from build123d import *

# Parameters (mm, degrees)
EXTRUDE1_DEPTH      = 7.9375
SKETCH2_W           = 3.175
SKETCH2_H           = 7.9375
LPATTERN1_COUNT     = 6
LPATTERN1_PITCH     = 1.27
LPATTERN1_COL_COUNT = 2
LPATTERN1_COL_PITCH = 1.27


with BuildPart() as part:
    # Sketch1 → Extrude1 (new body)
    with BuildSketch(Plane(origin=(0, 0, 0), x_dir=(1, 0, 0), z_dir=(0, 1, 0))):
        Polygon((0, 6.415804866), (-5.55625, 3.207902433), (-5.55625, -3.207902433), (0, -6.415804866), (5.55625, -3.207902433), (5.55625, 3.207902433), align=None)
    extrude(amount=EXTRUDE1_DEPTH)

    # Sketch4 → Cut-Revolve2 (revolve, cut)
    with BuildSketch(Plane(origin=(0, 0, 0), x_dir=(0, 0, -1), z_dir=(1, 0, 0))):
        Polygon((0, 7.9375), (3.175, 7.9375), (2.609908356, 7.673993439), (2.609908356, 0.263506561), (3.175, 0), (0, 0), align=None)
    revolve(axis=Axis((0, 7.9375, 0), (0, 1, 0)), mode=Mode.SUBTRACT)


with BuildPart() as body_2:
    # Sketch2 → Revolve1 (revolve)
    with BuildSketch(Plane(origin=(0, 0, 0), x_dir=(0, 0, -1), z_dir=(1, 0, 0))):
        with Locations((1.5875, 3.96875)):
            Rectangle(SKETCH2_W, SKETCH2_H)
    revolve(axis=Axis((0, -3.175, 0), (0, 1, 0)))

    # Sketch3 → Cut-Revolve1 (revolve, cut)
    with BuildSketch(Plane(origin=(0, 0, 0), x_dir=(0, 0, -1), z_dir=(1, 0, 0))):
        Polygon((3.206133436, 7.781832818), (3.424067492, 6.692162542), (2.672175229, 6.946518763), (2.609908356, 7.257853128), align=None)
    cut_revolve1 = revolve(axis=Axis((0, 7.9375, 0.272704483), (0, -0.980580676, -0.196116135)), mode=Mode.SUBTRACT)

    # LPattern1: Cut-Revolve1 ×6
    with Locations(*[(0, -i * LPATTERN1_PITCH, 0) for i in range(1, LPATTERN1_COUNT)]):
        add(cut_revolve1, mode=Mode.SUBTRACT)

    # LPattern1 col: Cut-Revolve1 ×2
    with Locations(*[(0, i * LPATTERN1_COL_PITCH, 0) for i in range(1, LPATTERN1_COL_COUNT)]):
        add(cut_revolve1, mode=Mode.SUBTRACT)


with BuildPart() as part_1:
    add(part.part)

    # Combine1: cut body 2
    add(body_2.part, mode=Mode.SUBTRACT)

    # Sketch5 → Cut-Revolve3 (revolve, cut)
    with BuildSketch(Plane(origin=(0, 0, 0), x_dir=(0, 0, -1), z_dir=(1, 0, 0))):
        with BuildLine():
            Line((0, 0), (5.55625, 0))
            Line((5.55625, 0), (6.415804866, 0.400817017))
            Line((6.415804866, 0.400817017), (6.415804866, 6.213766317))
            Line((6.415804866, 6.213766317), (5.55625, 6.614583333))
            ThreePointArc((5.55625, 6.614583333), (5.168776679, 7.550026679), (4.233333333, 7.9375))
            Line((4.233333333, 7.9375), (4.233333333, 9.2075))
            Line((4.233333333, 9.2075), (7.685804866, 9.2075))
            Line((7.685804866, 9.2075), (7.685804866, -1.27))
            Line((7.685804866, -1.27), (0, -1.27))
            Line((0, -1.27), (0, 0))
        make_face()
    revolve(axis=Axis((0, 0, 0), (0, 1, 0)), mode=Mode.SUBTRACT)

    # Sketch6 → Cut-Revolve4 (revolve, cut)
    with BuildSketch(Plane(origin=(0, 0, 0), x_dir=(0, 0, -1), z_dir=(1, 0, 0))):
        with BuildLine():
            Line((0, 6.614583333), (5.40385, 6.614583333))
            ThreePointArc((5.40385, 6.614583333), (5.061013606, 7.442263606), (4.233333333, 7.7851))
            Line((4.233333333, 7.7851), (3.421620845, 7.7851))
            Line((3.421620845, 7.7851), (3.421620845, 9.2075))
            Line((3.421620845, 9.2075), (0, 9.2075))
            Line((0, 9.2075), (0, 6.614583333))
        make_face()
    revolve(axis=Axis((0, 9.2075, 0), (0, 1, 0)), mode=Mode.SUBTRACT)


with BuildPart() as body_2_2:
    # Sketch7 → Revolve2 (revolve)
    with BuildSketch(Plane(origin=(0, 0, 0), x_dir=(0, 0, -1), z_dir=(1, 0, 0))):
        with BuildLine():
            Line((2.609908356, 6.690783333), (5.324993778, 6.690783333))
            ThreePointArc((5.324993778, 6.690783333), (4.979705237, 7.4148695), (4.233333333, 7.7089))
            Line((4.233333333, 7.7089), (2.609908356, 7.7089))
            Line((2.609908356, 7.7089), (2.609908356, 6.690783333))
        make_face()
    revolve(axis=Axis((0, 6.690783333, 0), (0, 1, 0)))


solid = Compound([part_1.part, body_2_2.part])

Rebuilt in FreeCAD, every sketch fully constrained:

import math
import FreeCAD as App
import Part
import Sketcher

V = App.Vector
Q = App.Units.Quantity


def add_polygon(sketch, points):
    """Adds a closed chain of lines whose ends are joined by coincident constraints."""
    first, n = sketch.GeometryCount, len(points)
    for a, b in zip(points, points[1:] + points[:1]):
        sketch.addGeometry(Part.LineSegment(App.Vector(*a, 0), App.Vector(*b, 0)), False)
    for i in range(n):
        sketch.addConstraint(Sketcher.Constraint("Coincident", first + i, 2, first + (i + 1) % n, 1))

doc = App.newDocument("Part")
params = doc.addObject("Spreadsheet::Sheet", "Params")
for row, (alias, value) in enumerate([
    ("pad1_length", "0.3125 in"),
    ("sketch2_width", "0.3125 in"),
    ("sketch2_height", "0.125 in"),
    ("groove_angle", "360 deg"),
    ("sketch3_width", "0.3125 in"),
    ("sketch3_height", "0.125 in"),
    ("revolution_angle", "360 deg"),
    ("sketch4_length", "0.03125 in"),
    ("groove2_angle", "360 deg"),
    ("linearpattern_pitch", "0.05 in"),
    ("linearpattern2_pitch", "0.05 in"),
    ("sketch5_width", "0.05 in"),
    ("sketch5_height", "0.21875 in"),
    ("groove3_angle", "360 deg"),
    ("sketch6_width", "0.056 in"),
    ("groove4_angle", "360 deg"),
    ("revolution2_angle", "360 deg"),
], start=1):
    params.set(f"A{row}", alias)
    params.set(f"B{row}", "=" + value)
    params.setAlias(f"B{row}", alias)

body = doc.addObject("PartDesign::Body", "Body")

sketch1 = body.newObject("Sketcher::SketchObject", "Sketch")
sketch1.AttachmentSupport = (doc.getObject("XZ_Plane"), [""])
sketch1.MapMode = "FlatFace"
add_polygon(sketch1, [(0, -6), (-6, -3), (-6, 3), (0, 6), (6, 3), (6, -3)])
sketch1.addConstraint(Sketcher.Constraint("Vertical", 1))
sketch1.addConstraint(Sketcher.Constraint("Vertical", 4))
sketch1.addConstraint(Sketcher.Constraint("Symmetric", 0, 2, 3, 2, -1, 1))
sketch1.addConstraint(Sketcher.Constraint("Symmetric", 2, 2, 5, 2, -1, 1))
sketch1.addConstraint(Sketcher.Constraint("PointOnObject", 2, 2, -2))
sketch1.addConstraint(Sketcher.Constraint("Parallel", 2, 5))
sketch1.addConstraint(Sketcher.Constraint("Horizontal", 1, 2, 3, 2))
sketch1.addConstraint(Sketcher.Constraint("Angle", 0, Q("150 deg")))
sketch1.addConstraint(Sketcher.Constraint("DistanceX", 0, 2, -1, 1, Q("0.21875 in")))
sketch1.addConstraint(Sketcher.Constraint("DistanceY", 1, 1, 1, 2, 6.415805))
pad1 = body.newObject("PartDesign::Pad", "Pad")
pad1.Profile = sketch1
pad1.setExpression("Length", "Params.pad1_length")
pad1.Reversed = True

sketch2 = body.newObject("Sketcher::SketchObject", "Sketch001")
sketch2.AttachmentSupport = (doc.getObject("YZ_Plane"), [""])
sketch2.MapMode = "FlatFace"
add_polygon(sketch2, [(7.9, -3.2), (7.9, 0), (0, 0), (0, -3.2), (0.3, -2.6), (7.7, -2.6)])
sketch2.addConstraint(Sketcher.Constraint("Vertical", 0))
sketch2.addConstraint(Sketcher.Constraint("Horizontal", 1))
sketch2.addConstraint(Sketcher.Constraint("Vertical", 2))
sketch2.addConstraint(Sketcher.Constraint("Horizontal", 4))
sketch2.addConstraint(Sketcher.Constraint("Coincident", 1, 2, -1, 1))
sketch2.addConstraint(Sketcher.Constraint("Horizontal", 2, 2, 5, 2))
sketch2.addConstraint(Sketcher.Constraint("Equal", 3, 5))
sketch2.addConstraint(Sketcher.Constraint("Angle", 3, Q("65 deg")))
sketch2.addConstraint(Sketcher.Constraint("DistanceX", 1, 2, 1, 1, Q("0.3125 in")))
sketch2.addConstraint(Sketcher.Constraint("DistanceY", 0, 1, 0, 2, Q("0.125 in")))
sketch2.addConstraint(Sketcher.Constraint("Distance", 3, 0.62351))
sketch2.setExpression("Constraints[14]", "Params.sketch2_width")
sketch2.setExpression("Constraints[15]", "Params.sketch2_height")
groove = body.newObject("PartDesign::Groove", "Groove")
groove.Profile = sketch2
groove.ReferenceAxis = (sketch2, ["H_Axis"])
groove.setExpression("Angle", "Params.groove_angle")
body2 = doc.addObject("PartDesign::Body", "Body001")

sketch3 = body2.newObject("Sketcher::SketchObject", "Sketch002")
sketch3.AttachmentSupport = (doc.getObject("YZ_Plane001"), [""])
sketch3.MapMode = "FlatFace"
add_polygon(sketch3, [(7.9, 0), (0, 0), (0, -3.2), (7.9, -3.2)])
sketch3.addConstraint(Sketcher.Constraint("Horizontal", 0))
sketch3.addConstraint(Sketcher.Constraint("Vertical", 1))
sketch3.addConstraint(Sketcher.Constraint("Horizontal", 2))
sketch3.addConstraint(Sketcher.Constraint("Vertical", 3))
sketch3.addConstraint(Sketcher.Constraint("Coincident", 0, 2, -1, 1))
sketch3.addConstraint(Sketcher.Constraint("DistanceX", 0, 2, 0, 1, Q("0.3125 in")))
sketch3.addConstraint(Sketcher.Constraint("DistanceY", 1, 2, 1, 1, Q("0.125 in")))
sketch3.setExpression("Constraints[9]", "Params.sketch3_width")
sketch3.setExpression("Constraints[10]", "Params.sketch3_height")
revolution = body2.newObject("PartDesign::Revolution", "Revolution")
revolution.Profile = sketch3
revolution.ReferenceAxis = (sketch3, ["H_Axis"])
revolution.setExpression("Angle", "Params.revolution_angle")

sketch4 = body2.newObject("Sketcher::SketchObject", "Sketch003")
sketch4.AttachmentSupport = (doc.getObject("YZ_Plane001"), [""])
sketch4.MapMode = "FlatFace"
add_polygon(sketch4, [(6.69, -3.42), (7.78, -3.21), (7.26, -2.61), (6.95, -2.67)])
sketch4.addGeometry(Part.LineSegment(V(7.12, 0.11, 0), V(6.03, -0.11, 0)), True)
sketch4.addConstraint(Sketcher.Constraint("Parallel", 0, 2))
sketch4.addConstraint(Sketcher.Constraint("Parallel", 2, 4))
sketch4.addConstraint(Sketcher.Constraint("Equal", 1, 3))
sketch4.addConstraint(Sketcher.Constraint("Equal", 0, 4))
sketch4.addConstraint(Sketcher.Constraint("Distance", 1, Q("0.03125 in")))
sketch4.addConstraint(Sketcher.Constraint("Distance", 2, Q("0.0125 in")))
sketch4.addConstraint(Sketcher.Constraint("DistanceY", 0, 2, 4, 1, 3.3151))
sketch4.addConstraint(Sketcher.Constraint("Distance", 0, 1.11125))
sketch4.addConstraint(Sketcher.Constraint("DistanceY", 1, 2, -1, 1, 2.609908))
sketch4.addConstraint(Sketcher.Constraint("DistanceX", -1, 1, 2, 2, 6.946519))
sketch4.addConstraint(Sketcher.Constraint("DistanceX", 1, 2, 0, 2, 0.52398))
sketch4.addConstraint(Sketcher.Constraint("DistanceX", 4, 1, 1, 2, 0.13904))
sketch4.setExpression("Constraints[8]", "Params.sketch4_length")
groove2 = body2.newObject("PartDesign::Groove", "Groove001")
groove2.Profile = sketch4
groove2.ReferenceAxis = (sketch4, ["Axis0"])
groove2.setExpression("Angle", "Params.groove2_angle")
doc.recompute()

linearpattern = body2.newObject("PartDesign::LinearPattern", "LinearPattern")
linearpattern.Originals = [groove2]
linearpattern.Direction = (doc.getObject("Y_Axis001"), [""])
linearpattern.Mode = "offset"
linearpattern.setExpression("Offset", "Params.linearpattern_pitch")
linearpattern.Occurrences = 6
linearpattern.Reversed = True
body2.Tip = linearpattern
doc.recompute()

linearpattern2 = body2.newObject("PartDesign::LinearPattern", "LinearPattern001")
linearpattern2.Originals = [groove2]
linearpattern2.Direction = (doc.getObject("Y_Axis001"), [""])
linearpattern2.Mode = "offset"
linearpattern2.setExpression("Offset", "Params.linearpattern2_pitch")
linearpattern2.Occurrences = 2
body2.Tip = linearpattern2
doc.recompute()

boolean = body.newObject("PartDesign::Boolean", "Boolean")
boolean.Type = "Cut"
boolean.addObjects([body2])

sketch5 = body.newObject("Sketcher::SketchObject", "Sketch004")
sketch5.AttachmentSupport = (doc.getObject("YZ_Plane"), [""])
sketch5.MapMode = "FlatFace"
sketch5.addGeometry(Part.LineSegment(V(0, -5.6, 0), V(0, 0, 0)), False)
sketch5.addGeometry(Part.LineSegment(V(0, 0, 0), V(-1.3, 0, 0)), False)
sketch5.addGeometry(Part.LineSegment(V(-1.3, 0, 0), V(-1.3, -7.7, 0)), False)
sketch5.addGeometry(Part.LineSegment(V(-1.3, -7.7, 0), V(9.2, -7.7, 0)), False)
sketch5.addGeometry(Part.LineSegment(V(9.2, -7.7, 0), V(9.2, -4.2, 0)), False)
sketch5.addGeometry(Part.LineSegment(V(9.2, -4.2, 0), V(7.9, -4.2, 0)), False)
sketch5.addGeometry(Part.ArcOfCircle(Part.Circle(V(6.6, -4.2, 0), V(0, 0, 1), 1.3), math.radians(-90), math.radians(0)), False)
sketch5.addGeometry(Part.LineSegment(V(6.6, -5.6, 0), V(6.2, -6.4, 0)), False)
sketch5.addGeometry(Part.LineSegment(V(6.2, -6.4, 0), V(0.4, -6.4, 0)), False)
sketch5.addGeometry(Part.LineSegment(V(0.4, -6.4, 0), V(0, -5.6, 0)), False)
sketch5.addConstraint(Sketcher.Constraint("Coincident", 0, 2, 1, 1))
sketch5.addConstraint(Sketcher.Constraint("Coincident", 1, 2, 2, 1))
sketch5.addConstraint(Sketcher.Constraint("Coincident", 2, 2, 3, 1))
sketch5.addConstraint(Sketcher.Constraint("Coincident", 3, 2, 4, 1))
sketch5.addConstraint(Sketcher.Constraint("Coincident", 4, 2, 5, 1))
sketch5.addConstraint(Sketcher.Constraint("Coincident", 5, 2, 6, 2))
sketch5.addConstraint(Sketcher.Constraint("Coincident", 6, 1, 7, 1))
sketch5.addConstraint(Sketcher.Constraint("Coincident", 7, 2, 8, 1))
sketch5.addConstraint(Sketcher.Constraint("Coincident", 8, 2, 9, 1))
sketch5.addConstraint(Sketcher.Constraint("Coincident", 9, 2, 0, 1))
sketch5.addConstraint(Sketcher.Constraint("Vertical", 0))
sketch5.addConstraint(Sketcher.Constraint("Horizontal", 1))
sketch5.addConstraint(Sketcher.Constraint("Vertical", 2))
sketch5.addConstraint(Sketcher.Constraint("Horizontal", 3))
sketch5.addConstraint(Sketcher.Constraint("Vertical", 4))
sketch5.addConstraint(Sketcher.Constraint("Horizontal", 5))
sketch5.addConstraint(Sketcher.Constraint("Horizontal", 8))
sketch5.addConstraint(Sketcher.Constraint("Coincident", 0, 2, -1, 1))
sketch5.addConstraint(Sketcher.Constraint("Horizontal", 6, 3, 4, 2))
sketch5.addConstraint(Sketcher.Constraint("Horizontal", 6, 1, 9, 2))
sketch5.addConstraint(Sketcher.Constraint("Equal", 1, 5))
sketch5.addConstraint(Sketcher.Constraint("Equal", 7, 9))
sketch5.addConstraint(Sketcher.Constraint("Angle", 7, Q("-115 deg")))
sketch5.addConstraint(Sketcher.Constraint("DistanceX", 1, 2, 1, 1, Q("0.05 in")))
sketch5.addConstraint(Sketcher.Constraint("DistanceY", 0, 1, 0, 2, Q("0.21875 in")))
sketch5.addConstraint(Sketcher.Constraint("DistanceY", 3, 2, 7, 2, Q("0.05 in")))
sketch5.addConstraint(Sketcher.Constraint("DistanceX", 3, 1, 3, 2, Q("0.4125 in")))
sketch5.addConstraint(Sketcher.Constraint("Radius", 6, 1.322917))
sketch5.addConstraint(Sketcher.Constraint("DistanceX", 8, 2, 8, 1, 5.812949))
sketch5.addConstraint(Sketcher.Constraint("DistanceY", 4, 1, 4, 2, 3.452472))
sketch5.setExpression("Constraints[23]", "Params.sketch5_width")
sketch5.setExpression("Constraints[24]", "Params.sketch5_height")
groove3 = body.newObject("PartDesign::Groove", "Groove002")
groove3.Profile = sketch5
groove3.ReferenceAxis = (sketch5, ["H_Axis"])
groove3.setExpression("Angle", "Params.groove3_angle")

sketch6 = body.newObject("Sketcher::SketchObject", "Sketch005")
sketch6.AttachmentSupport = (doc.getObject("YZ_Plane"), [""])
sketch6.MapMode = "FlatFace"
sketch6.addGeometry(Part.LineSegment(V(6.6, 0, 0), V(6.6, -5.4, 0)), False)
sketch6.addGeometry(Part.ArcOfCircle(Part.Circle(V(6.6, -4.2, 0), V(0, 0, 1), 1.2), math.radians(-90), math.radians(0)), False)
sketch6.addGeometry(Part.LineSegment(V(7.8, -4.2, 0), V(7.8, -3.4, 0)), False)
sketch6.addGeometry(Part.LineSegment(V(7.8, -3.4, 0), V(9.2, -3.4, 0)), False)
sketch6.addGeometry(Part.LineSegment(V(9.2, -3.4, 0), V(9.2, 0, 0)), False)
sketch6.addGeometry(Part.LineSegment(V(9.2, 0, 0), V(6.6, 0, 0)), False)
sketch6.addConstraint(Sketcher.Constraint("Coincident", 0, 2, 1, 1))
sketch6.addConstraint(Sketcher.Constraint("Tangent", 1, 2, 2, 1))
sketch6.addConstraint(Sketcher.Constraint("Coincident", 2, 2, 3, 1))
sketch6.addConstraint(Sketcher.Constraint("Coincident", 3, 2, 4, 1))
sketch6.addConstraint(Sketcher.Constraint("Coincident", 4, 2, 5, 1))
sketch6.addConstraint(Sketcher.Constraint("Coincident", 5, 2, 0, 1))
sketch6.addConstraint(Sketcher.Constraint("Vertical", 0))
sketch6.addConstraint(Sketcher.Constraint("Vertical", 2))
sketch6.addConstraint(Sketcher.Constraint("Horizontal", 3))
sketch6.addConstraint(Sketcher.Constraint("Vertical", 4))
sketch6.addConstraint(Sketcher.Constraint("Horizontal", 5))
sketch6.addConstraint(Sketcher.Constraint("PointOnObject", 4, 2, -1))
sketch6.addConstraint(Sketcher.Constraint("Vertical", 1, 3, 0, 2))
sketch6.addConstraint(Sketcher.Constraint("DistanceX", 3, 1, 3, 2, Q("0.056 in")))
sketch6.addConstraint(Sketcher.Constraint("DistanceX", -1, 1, 1, 2, Q("0.3065 in")))
sketch6.addConstraint(Sketcher.Constraint("Radius", 1, 1.170517))
sketch6.addConstraint(Sketcher.Constraint("DistanceY", 0, 2, 0, 1, 5.40385))
sketch6.addConstraint(Sketcher.Constraint("DistanceY", 4, 1, 4, 2, 3.421621))
sketch6.setExpression("Constraints[13]", "Params.sketch6_width")
groove4 = body.newObject("PartDesign::Groove", "Groove003")
groove4.Profile = sketch6
groove4.ReferenceAxis = (sketch6, ["H_Axis"])
groove4.setExpression("Angle", "Params.groove4_angle")
body3 = doc.addObject("PartDesign::Body", "Body002")

sketch7 = body3.newObject("Sketcher::SketchObject", "Sketch006")
sketch7.AttachmentSupport = (doc.getObject("YZ_Plane002"), [""])
sketch7.MapMode = "FlatFace"
sketch7.addGeometry(Part.LineSegment(V(6.7, -2.6, 0), V(6.7, -5.3, 0)), False)
sketch7.addGeometry(Part.ArcOfCircle(Part.Circle(V(6.6, -4.2, 0), V(0, 0, 1), 1.1), math.radians(-86), math.radians(0)), False)
sketch7.addGeometry(Part.LineSegment(V(7.7, -4.2, 0), V(7.7, -2.6, 0)), False)
sketch7.addGeometry(Part.LineSegment(V(7.7, -2.6, 0), V(6.7, -2.6, 0)), False)
sketch7.addConstraint(Sketcher.Constraint("Coincident", 0, 2, 1, 1))
sketch7.addConstraint(Sketcher.Constraint("Tangent", 1, 2, 2, 1))
sketch7.addConstraint(Sketcher.Constraint("Coincident", 2, 2, 3, 1))
sketch7.addConstraint(Sketcher.Constraint("Coincident", 3, 2, 0, 1))
sketch7.addConstraint(Sketcher.Constraint("Vertical", 0))
sketch7.addConstraint(Sketcher.Constraint("Vertical", 2))
sketch7.addConstraint(Sketcher.Constraint("Horizontal", 3))
sketch7.addConstraint(Sketcher.Constraint("DistanceX", 1, 3, 0, 2, Q("0.003 in")))
sketch7.addConstraint(Sketcher.Constraint("DistanceX", -1, 1, 1, 2, Q("0.3035 in")))
sketch7.addConstraint(Sketcher.Constraint("Radius", 1, 1.094317))
sketch7.addConstraint(Sketcher.Constraint("DistanceY", 0, 2, 0, 1, 2.715085))
sketch7.addConstraint(Sketcher.Constraint("DistanceY", 2, 2, -1, 1, 2.609908))
revolution2 = body3.newObject("PartDesign::Revolution", "Revolution001")
revolution2.Profile = sketch7
revolution2.ReferenceAxis = (sketch7, ["H_Axis"])
revolution2.setExpression("Angle", "Params.revolution2_angle")

doc.recompute()
